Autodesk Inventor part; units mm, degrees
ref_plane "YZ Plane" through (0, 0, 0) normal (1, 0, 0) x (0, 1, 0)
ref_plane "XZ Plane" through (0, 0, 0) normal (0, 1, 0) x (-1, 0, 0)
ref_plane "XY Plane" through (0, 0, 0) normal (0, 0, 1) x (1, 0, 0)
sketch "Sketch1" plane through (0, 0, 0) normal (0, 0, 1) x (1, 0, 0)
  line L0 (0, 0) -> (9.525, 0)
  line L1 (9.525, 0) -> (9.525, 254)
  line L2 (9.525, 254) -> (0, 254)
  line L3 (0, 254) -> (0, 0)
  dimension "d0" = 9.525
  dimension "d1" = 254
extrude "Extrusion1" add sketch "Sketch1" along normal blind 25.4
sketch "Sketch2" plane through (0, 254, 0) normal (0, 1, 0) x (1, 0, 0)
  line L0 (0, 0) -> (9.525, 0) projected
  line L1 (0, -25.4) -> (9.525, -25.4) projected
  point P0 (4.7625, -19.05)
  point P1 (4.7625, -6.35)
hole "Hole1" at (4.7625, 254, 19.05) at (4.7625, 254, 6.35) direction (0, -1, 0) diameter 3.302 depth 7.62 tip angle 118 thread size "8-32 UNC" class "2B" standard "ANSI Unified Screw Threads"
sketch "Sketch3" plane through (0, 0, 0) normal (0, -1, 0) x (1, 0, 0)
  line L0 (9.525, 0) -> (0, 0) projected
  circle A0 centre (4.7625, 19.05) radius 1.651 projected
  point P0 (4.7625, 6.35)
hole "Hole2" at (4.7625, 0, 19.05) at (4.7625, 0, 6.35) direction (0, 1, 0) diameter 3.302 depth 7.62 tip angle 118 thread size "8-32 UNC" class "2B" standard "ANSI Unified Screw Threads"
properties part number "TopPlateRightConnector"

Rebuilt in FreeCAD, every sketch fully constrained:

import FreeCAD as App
import Part
import Sketcher
Q = App.Units.Quantity


def add_polygon(sketch, points):
    """Adds a closed chain of lines whose ends are joined by coincident constraints."""
    first, n = sketch.GeometryCount, len(points)
    for a, b in zip(points, points[1:] + points[:1]):
        sketch.addGeometry(Part.LineSegment(App.Vector(*a, 0), App.Vector(*b, 0)), False)
    for i in range(n):
        sketch.addConstraint(Sketcher.Constraint("Coincident", first + i, 2, first + (i + 1) % n, 1))

doc = App.newDocument("Part")
body = doc.addObject("PartDesign::Body", "Body")

# Sketch on XY plane
sketch1 = body.newObject("Sketcher::SketchObject", "Sketch")
sketch1.AttachmentSupport = (doc.getObject("XY_Plane"), [""])
sketch1.MapMode = "FlatFace"
add_polygon(sketch1, [(0, 254), (0, 0), (10, 0), (10, 254)])  # lines 0-3
sketch1.addConstraint(Sketcher.Constraint("Vertical", 0))
sketch1.addConstraint(Sketcher.Constraint("Horizontal", 1))
sketch1.addConstraint(Sketcher.Constraint("Vertical", 2))
sketch1.addConstraint(Sketcher.Constraint("Horizontal", 3))
sketch1.addConstraint(Sketcher.Constraint("Coincident", 0, 2, -1, 1))
sketch1.addConstraint(Sketcher.Constraint("DistanceY", 0, 2, 0, 1, Q("10 in")))
sketch1.addConstraint(Sketcher.Constraint("DistanceX", 1, 1, 1, 2, Q("0.375 in")))
pad1 = body.newObject("PartDesign::Pad", "Pad")
pad1.Profile = sketch1
pad1.Length = Q("1 in")

# Sketch on XZ plane
sketch2 = body.newObject("Sketcher::SketchObject", "Sketch001")
sketch2.AttachmentSupport = (doc.getObject("XZ_Plane"), [""])
sketch2.MapMode = "FlatFace"
sketch2.AttachmentOffset = App.Placement(App.Vector(0, 0, -10 * 25.4), App.Rotation())
sketch2.addGeometry(Part.Circle(App.Vector(4.8, 19.1, 0), App.Vector(0, 0, 1), 1.7), False)
sketch2.addGeometry(Part.Circle(App.Vector(4.8, 6.3, 0), App.Vector(0, 0, 1), 1.7), False)
sketch2.addConstraint(Sketcher.Constraint("Equal", 0, 1))
sketch2.addConstraint(Sketcher.Constraint("Vertical", 0, 3, 1, 3))
sketch2.addConstraint(Sketcher.Constraint("Diameter", 0, Q("0.13 in")))
sketch2.addConstraint(Sketcher.Constraint("DistanceY", 1, 3, 0, 3, Q("0.5 in")))
sketch2.addConstraint(Sketcher.Constraint("DistanceY", -1, 1, 0, 3, Q("0.75 in")))
sketch2.addConstraint(Sketcher.Constraint("DistanceX", -1, 1, 0, 3, Q("0.1875 in")))
doc.recompute()
hole = body.newObject("PartDesign::Hole", "Hole")
hole.Profile = sketch2
hole.ThreadType = "None"
hole.Diameter = Q("0.13 in")
hole.DepthType = "Dimension"
hole.Depth = Q("0.3 in")
hole.DrillPoint = "Angled"
hole.DrillPointAngle = 118
hole.Reversed = True

# Sketch on XZ plane
sketch3 = body.newObject("Sketcher::SketchObject", "Sketch002")
sketch3.AttachmentSupport = (doc.getObject("XZ_Plane"), [""])
sketch3.MapMode = "FlatFace"
sketch3.addGeometry(Part.Circle(App.Vector(4.8, 19.1, 0), App.Vector(0, 0, 1), 1.7), False)
sketch3.addGeometry(Part.Circle(App.Vector(4.8, 6.3, 0), App.Vector(0, 0, 1), 1.7), False)
sketch3.addConstraint(Sketcher.Constraint("Equal", 0, 1))
sketch3.addConstraint(Sketcher.Constraint("Vertical", 0, 3, 1, 3))
sketch3.addConstraint(Sketcher.Constraint("Diameter", 0, Q("0.13 in")))
sketch3.addConstraint(Sketcher.Constraint("DistanceY", 1, 3, 0, 3, Q("0.5 in")))
sketch3.addConstraint(Sketcher.Constraint("DistanceY", -1, 1, 0, 3, Q("0.75 in")))
sketch3.addConstraint(Sketcher.Constraint("DistanceX", -1, 1, 0, 3, Q("0.1875 in")))
doc.recompute()
hole2 = body.newObject("PartDesign::Hole", "Hole001")
hole2.Profile = sketch3
hole2.ThreadType = "None"
hole2.Diameter = Q("0.13 in")
hole2.DepthType = "Dimension"
hole2.Depth = Q("0.3 in")
hole2.DrillPoint = "Angled"
hole2.DrillPointAngle = 118

doc.recompute()
